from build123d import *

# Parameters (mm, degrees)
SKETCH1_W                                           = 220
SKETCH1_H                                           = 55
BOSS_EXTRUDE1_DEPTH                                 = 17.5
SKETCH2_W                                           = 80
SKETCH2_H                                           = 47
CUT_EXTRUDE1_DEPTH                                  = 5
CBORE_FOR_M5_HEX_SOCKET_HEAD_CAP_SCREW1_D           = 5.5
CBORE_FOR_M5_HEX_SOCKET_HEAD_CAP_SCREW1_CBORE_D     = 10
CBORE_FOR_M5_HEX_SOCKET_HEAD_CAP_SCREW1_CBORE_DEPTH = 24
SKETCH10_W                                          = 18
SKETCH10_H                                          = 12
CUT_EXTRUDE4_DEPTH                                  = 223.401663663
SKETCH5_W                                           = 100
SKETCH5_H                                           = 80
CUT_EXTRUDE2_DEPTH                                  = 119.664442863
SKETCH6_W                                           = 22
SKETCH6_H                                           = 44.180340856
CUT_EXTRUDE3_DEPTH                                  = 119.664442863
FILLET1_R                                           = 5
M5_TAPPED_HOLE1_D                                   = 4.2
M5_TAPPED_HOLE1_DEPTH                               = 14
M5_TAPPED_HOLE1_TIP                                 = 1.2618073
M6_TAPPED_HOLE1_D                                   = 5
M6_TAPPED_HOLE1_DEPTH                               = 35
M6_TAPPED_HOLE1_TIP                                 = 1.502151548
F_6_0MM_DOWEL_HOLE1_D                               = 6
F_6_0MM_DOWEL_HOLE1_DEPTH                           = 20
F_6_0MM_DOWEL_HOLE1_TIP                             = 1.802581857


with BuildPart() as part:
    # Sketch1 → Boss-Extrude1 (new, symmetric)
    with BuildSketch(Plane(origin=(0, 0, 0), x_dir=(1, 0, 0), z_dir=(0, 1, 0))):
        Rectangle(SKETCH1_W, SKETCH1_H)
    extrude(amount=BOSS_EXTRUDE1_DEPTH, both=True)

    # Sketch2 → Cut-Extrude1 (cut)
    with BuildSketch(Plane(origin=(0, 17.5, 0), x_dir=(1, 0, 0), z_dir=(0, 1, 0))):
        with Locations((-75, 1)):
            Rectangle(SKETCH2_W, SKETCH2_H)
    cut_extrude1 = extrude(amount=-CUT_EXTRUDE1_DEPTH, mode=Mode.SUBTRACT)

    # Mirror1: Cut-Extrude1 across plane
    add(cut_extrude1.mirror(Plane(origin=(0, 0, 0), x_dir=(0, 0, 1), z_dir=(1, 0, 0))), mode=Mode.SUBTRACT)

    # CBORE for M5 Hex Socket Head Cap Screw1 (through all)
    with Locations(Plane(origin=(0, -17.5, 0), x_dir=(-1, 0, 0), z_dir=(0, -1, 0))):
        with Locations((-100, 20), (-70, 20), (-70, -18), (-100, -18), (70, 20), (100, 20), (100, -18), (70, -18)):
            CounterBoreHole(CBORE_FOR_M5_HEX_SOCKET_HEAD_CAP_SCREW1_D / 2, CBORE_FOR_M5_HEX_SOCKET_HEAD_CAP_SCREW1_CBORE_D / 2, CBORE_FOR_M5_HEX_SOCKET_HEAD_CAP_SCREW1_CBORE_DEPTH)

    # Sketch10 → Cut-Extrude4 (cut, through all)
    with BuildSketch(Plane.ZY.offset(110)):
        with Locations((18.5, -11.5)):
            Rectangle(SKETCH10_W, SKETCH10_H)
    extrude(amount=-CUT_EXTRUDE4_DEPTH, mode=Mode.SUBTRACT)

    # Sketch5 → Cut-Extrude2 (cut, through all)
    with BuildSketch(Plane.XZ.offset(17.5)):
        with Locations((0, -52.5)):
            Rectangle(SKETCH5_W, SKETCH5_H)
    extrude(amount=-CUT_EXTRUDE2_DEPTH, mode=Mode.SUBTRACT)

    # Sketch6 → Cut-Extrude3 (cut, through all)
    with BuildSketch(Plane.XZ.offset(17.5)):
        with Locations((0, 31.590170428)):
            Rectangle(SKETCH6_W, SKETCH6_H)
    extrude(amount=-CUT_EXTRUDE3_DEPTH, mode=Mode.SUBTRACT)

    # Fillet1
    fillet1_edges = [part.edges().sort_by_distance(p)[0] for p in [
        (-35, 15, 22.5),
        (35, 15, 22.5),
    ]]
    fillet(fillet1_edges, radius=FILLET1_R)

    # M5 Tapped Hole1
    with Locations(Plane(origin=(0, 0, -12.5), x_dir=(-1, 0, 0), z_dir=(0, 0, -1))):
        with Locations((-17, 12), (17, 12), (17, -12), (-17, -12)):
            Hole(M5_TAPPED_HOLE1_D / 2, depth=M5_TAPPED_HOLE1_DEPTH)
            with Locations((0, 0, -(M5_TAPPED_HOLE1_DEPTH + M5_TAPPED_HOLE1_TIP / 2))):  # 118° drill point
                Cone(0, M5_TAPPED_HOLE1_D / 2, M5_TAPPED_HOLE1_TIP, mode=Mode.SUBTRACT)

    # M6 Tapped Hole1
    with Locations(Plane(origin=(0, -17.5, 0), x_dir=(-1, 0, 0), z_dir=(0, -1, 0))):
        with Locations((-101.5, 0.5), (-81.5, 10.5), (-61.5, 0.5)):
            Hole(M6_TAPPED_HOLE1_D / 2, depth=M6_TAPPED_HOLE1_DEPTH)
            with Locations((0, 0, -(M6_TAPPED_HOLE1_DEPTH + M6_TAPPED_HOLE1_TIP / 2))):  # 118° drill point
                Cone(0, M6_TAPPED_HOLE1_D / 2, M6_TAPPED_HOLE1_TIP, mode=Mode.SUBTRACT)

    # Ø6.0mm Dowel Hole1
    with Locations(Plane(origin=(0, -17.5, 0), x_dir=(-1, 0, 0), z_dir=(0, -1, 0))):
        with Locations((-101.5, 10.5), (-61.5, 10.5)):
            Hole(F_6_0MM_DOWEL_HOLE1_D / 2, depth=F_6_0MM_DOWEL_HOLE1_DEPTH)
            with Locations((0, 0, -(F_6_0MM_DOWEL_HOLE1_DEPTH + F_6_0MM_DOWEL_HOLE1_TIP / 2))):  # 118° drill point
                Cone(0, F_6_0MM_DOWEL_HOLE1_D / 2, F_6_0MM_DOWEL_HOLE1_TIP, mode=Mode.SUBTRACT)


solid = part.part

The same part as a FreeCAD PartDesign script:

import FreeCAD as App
import Part
import Sketcher

V = App.Vector
Q = App.Units.Quantity


def edges_at(feature, points):
    """Names of the edges that pass closest to the given points."""
    edges = feature.Shape.Edges
    near = lambda p: min(range(len(edges)), key=lambda i: edges[i].distToShape(Part.Vertex(*p))[0])
    return sorted({f"Edge{near(p) + 1}" for p in points})


def add_polygon(sketch, points):
    """Adds a closed chain of lines whose ends are joined by coincident constraints."""
    first, n = sketch.GeometryCount, len(points)
    for a, b in zip(points, points[1:] + points[:1]):
        sketch.addGeometry(Part.LineSegment(App.Vector(*a, 0), App.Vector(*b, 0)), False)
    for i in range(n):
        sketch.addConstraint(Sketcher.Constraint("Coincident", first + i, 2, first + (i + 1) % n, 1))

doc = App.newDocument("Part")
body = doc.addObject("PartDesign::Body", "Body")

sketch1 = doc.addObject("Sketcher::SketchObject", "Sketch")
body.addObject(sketch1)
sketch1.AttachmentSupport = (doc.XZ_Plane, [""])
sketch1.MapMode = "FlatFace"
add_polygon(sketch1, [(-110, -27.5), (-110, 27.5), (110, 27.5), (110, -27.5)])
sketch1.addConstraint([
    Sketcher.Constraint("Vertical", 0),
    Sketcher.Constraint("Horizontal", 1),
    Sketcher.Constraint("Vertical", 2),
    Sketcher.Constraint("Horizontal", 3),
    Sketcher.Constraint("Symmetric", 0, 2, 2, 2, -1, 1),
    Sketcher.Constraint("DistanceX", 1, 1, 1, 2, Q("220 mm")),
    Sketcher.Constraint("DistanceY", 0, 1, 0, 2, Q("55 mm")),
])
pad1 = doc.addObject("PartDesign::Pad", "Pad")
body.addObject(pad1)
pad1.Profile = sketch1
pad1.Length = 35
pad1.Midplane = True

sketch2 = doc.addObject("Sketcher::SketchObject", "Sketch001")
body.addObject(sketch2)
sketch2.AttachmentSupport = (doc.XZ_Plane, [""])
sketch2.MapMode = "FlatFace"
sketch2.AttachmentOffset = App.Placement(V(0, 0, -17.5), App.Rotation())
add_polygon(sketch2, [(-115, -24.5), (-115, 22.5), (-35, 22.5), (-35, -24.5)])
sketch2.addConstraint([
    Sketcher.Constraint("Vertical", 0),
    Sketcher.Constraint("Horizontal", 1),
    Sketcher.Constraint("Vertical", 2),
    Sketcher.Constraint("Horizontal", 3),
    Sketcher.Constraint("DistanceX", 1, 1, 1, 2, Q("80 mm")),
    Sketcher.Constraint("DistanceY", 0, 1, 0, 2, Q("47 mm")),
    Sketcher.Constraint("DistanceX", 0, 2, -1, 1, Q("115 mm")),
    Sketcher.Constraint("DistanceY", -1, 1, 0, 2, Q("22.5 mm")),
])
pocket1 = doc.addObject("PartDesign::Pocket", "Pocket")
body.addObject(pocket1)
pocket1.Profile = sketch2
pocket1.Length = 5
pocket1.Reversed = True
doc.recompute()

mirrored = doc.addObject("PartDesign::Mirrored", "Mirrored")
body.addObject(mirrored)
mirrored.Originals = [pocket1]
mirrored.MirrorPlane = (doc.YZ_Plane, [""])
body.Tip = mirrored

sketch3 = doc.addObject("Sketcher::SketchObject", "Sketch002")
body.addObject(sketch3)
sketch3.AttachmentSupport = (doc.XZ_Plane, [""])
sketch3.MapMode = "FlatFace"
sketch3.AttachmentOffset = App.Placement(V(0, 0, 17.5), App.Rotation())
sketch3.addGeometry([
    Part.Circle(V(100, -20, 0), V(0, 0, 1), 2.75),
    Part.Circle(V(70, -20, 0), V(0, 0, 1), 2.75),
    Part.Circle(V(70, 18, 0), V(0, 0, 1), 2.75),
    Part.Circle(V(100, 18, 0), V(0, 0, 1), 2.75),
    Part.Circle(V(-70, -20, 0), V(0, 0, 1), 2.75),
    Part.Circle(V(-100, -20, 0), V(0, 0, 1), 2.75),
    Part.Circle(V(-100, 18, 0), V(0, 0, 1), 2.75),
    Part.Circle(V(-70, 18, 0), V(0, 0, 1), 2.75),
], False)
sketch3.addConstraint([
    Sketcher.Constraint("Equal", 0, 1),
    Sketcher.Constraint("Equal", 1, 2),
    Sketcher.Constraint("Equal", 2, 3),
    Sketcher.Constraint("Equal", 3, 4),
    Sketcher.Constraint("Equal", 4, 5),
    Sketcher.Constraint("Equal", 5, 6),
    Sketcher.Constraint("Equal", 6, 7),
    Sketcher.Constraint("Symmetric", 1, 3, 4, 3, -2),
    Sketcher.Constraint("Symmetric", 0, 3, 5, 3, -2),
    Sketcher.Constraint("Symmetric", 3, 3, 6, 3, -2),
    Sketcher.Constraint("Symmetric", 2, 3, 7, 3, -2),
    Sketcher.Constraint("Horizontal", 0, 3, 1, 3),
    Sketcher.Constraint("Horizontal", 2, 3, 3, 3),
    Sketcher.Constraint("Vertical", 1, 3, 2, 3),
    Sketcher.Constraint("Vertical", 0, 3, 3, 3),
    Sketcher.Constraint("Diameter", 0, Q("5.5 mm")),
    Sketcher.Constraint("DistanceX", -1, 1, 0, 3, Q("100 mm")),
    Sketcher.Constraint("DistanceY", 0, 3, -1, 1, Q("20 mm")),
    Sketcher.Constraint("DistanceX", -1, 1, 1, 3, Q("70 mm")),
    Sketcher.Constraint("DistanceY", -1, 1, 2, 3, Q("18 mm")),
])
doc.recompute()
hole = doc.addObject("PartDesign::Hole", "Hole")
body.addObject(hole)
hole.Profile = sketch3
hole.ThreadType = "None"
hole.Diameter = 5.5
hole.DepthType = "ThroughAll"
hole.HoleCutType = "Counterbore"
hole.HoleCutDiameter = 10
hole.HoleCutDepth = 24

sketch4 = doc.addObject("Sketcher::SketchObject", "Sketch003")
body.addObject(sketch4)
sketch4.AttachmentSupport = (doc.YZ_Plane, [""])
sketch4.MapMode = "FlatFace"
sketch4.AttachmentOffset = App.Placement(V(0, 0, -110), App.Rotation())
add_polygon(sketch4, [(-5.5, 9.5), (-17.5, 9.5), (-17.5, 27.5), (-5.5, 27.5)])
sketch4.addConstraint([
    Sketcher.Constraint("Horizontal", 0),
    Sketcher.Constraint("Vertical", 1),
    Sketcher.Constraint("Horizontal", 2),
    Sketcher.Constraint("Vertical", 3),
    Sketcher.Constraint("DistanceX", 0, 2, 0, 1, Q("12 mm")),
    Sketcher.Constraint("DistanceY", 1, 1, 1, 2, Q("18 mm")),
    Sketcher.Constraint("DistanceX", 0, 2, -1, 1, Q("17.5 mm")),
    Sketcher.Constraint("DistanceY", -1, 1, 0, 2, Q("9.5 mm")),
])
pocket2 = doc.addObject("PartDesign::Pocket", "Pocket001")
body.addObject(pocket2)
pocket2.Profile = sketch4
pocket2.Type = "ThroughAll"
pocket2.Reversed = True

sketch5 = doc.addObject("Sketcher::SketchObject", "Sketch004")
body.addObject(sketch5)
sketch5.AttachmentSupport = (doc.XZ_Plane, [""])
sketch5.MapMode = "FlatFace"
sketch5.AttachmentOffset = App.Placement(V(0, 0, 17.5), App.Rotation())
add_polygon(sketch5, [(-50, -12.5), (-50, -92.5), (50, -92.5), (50, -12.5)])
sketch5.addConstraint([
    Sketcher.Constraint("Vertical", 0),
    Sketcher.Constraint("Horizontal", 1),
    Sketcher.Constraint("Vertical", 2),
    Sketcher.Constraint("Horizontal", 3),
    Sketcher.Constraint("DistanceX", 1, 1, 1, 2, Q("100 mm")),
    Sketcher.Constraint("DistanceY", 0, 2, 0, 1, Q("80 mm")),
    Sketcher.Constraint("DistanceX", 0, 2, -1, 1, Q("50 mm")),
    Sketcher.Constraint("DistanceY", 0, 2, -1, 1, Q("92.5 mm")),
])
pocket3 = doc.addObject("PartDesign::Pocket", "Pocket002")
body.addObject(pocket3)
pocket3.Profile = sketch5
pocket3.Type = "ThroughAll"

sketch6 = doc.addObject("Sketcher::SketchObject", "Sketch005")
body.addObject(sketch6)
sketch6.AttachmentSupport = (doc.XZ_Plane, [""])
sketch6.MapMode = "FlatFace"
sketch6.AttachmentOffset = App.Placement(V(0, 0, 17.5), App.Rotation())
add_polygon(sketch6, [(-11, 53.680341), (-11, 9.5), (11, 9.5), (11, 53.680341)])
sketch6.addConstraint([
    Sketcher.Constraint("Vertical", 0),
    Sketcher.Constraint("Horizontal", 1),
    Sketcher.Constraint("Vertical", 2),
    Sketcher.Constraint("Horizontal", 3),
    Sketcher.Constraint("DistanceX", 1, 1, 1, 2, Q("22 mm")),
    Sketcher.Constraint("DistanceX", 0, 2, -1, 1, Q("11 mm")),
    Sketcher.Constraint("DistanceY", -1, 1, 0, 2, Q("9.5 mm")),
    Sketcher.Constraint("DistanceY", 0, 2, 0, 1, Q("44.180341 mm")),
])
pocket4 = doc.addObject("PartDesign::Pocket", "Pocket003")
body.addObject(pocket4)
pocket4.Profile = sketch6
pocket4.Type = "ThroughAll"
doc.recompute()

fillet = doc.addObject("PartDesign::Fillet", "Fillet")
body.addObject(fillet)
fillet.Base = (pocket4, edges_at(pocket4, [(-35, 15, 22.5), (35, 15, 22.5)]))
fillet.Radius = 5

sketch7 = doc.addObject("Sketcher::SketchObject", "Sketch006")
body.addObject(sketch7)
sketch7.AttachmentSupport = (doc.XY_Plane, [""])
sketch7.MapMode = "FlatFace"
sketch7.AttachmentOffset = App.Placement(V(0, 0, -12.5), App.Rotation())
sketch7.addGeometry([
    Part.Circle(V(17, 12, 0), V(0, 0, 1), 2.1),
    Part.Circle(V(-17, 12, 0), V(0, 0, 1), 2.1),
    Part.Circle(V(-17, -12, 0), V(0, 0, 1), 2.1),
    Part.Circle(V(17, -12, 0), V(0, 0, 1), 2.1),
], False)
sketch7.addConstraint([
    Sketcher.Constraint("Equal", 0, 1),
    Sketcher.Constraint("Equal", 1, 2),
    Sketcher.Constraint("Equal", 2, 3),
    Sketcher.Constraint("Symmetric", 0, 3, 2, 3, -1, 1),
    Sketcher.Constraint("Symmetric", 1, 3, 3, 3, -1, 1),
    Sketcher.Constraint("Symmetric", 0, 3, 1, 3, -2),
    Sketcher.Constraint("Diameter", 0, Q("4.2 mm")),
    Sketcher.Constraint("DistanceX", -1, 1, 0, 3, Q("17 mm")),
    Sketcher.Constraint("DistanceY", -1, 1, 0, 3, Q("12 mm")),
])
doc.recompute()
hole2 = doc.addObject("PartDesign::Hole", "Hole001")
body.addObject(hole2)
hole2.Profile = sketch7
hole2.ThreadType = "None"
hole2.Diameter = 4.2
hole2.DepthType = "Dimension"
hole2.Depth = 14
hole2.DrillPoint = "Angled"
hole2.DrillPointAngle = 118
hole2.Reversed = True

sketch8 = doc.addObject("Sketcher::SketchObject", "Sketch007")
body.addObject(sketch8)
sketch8.AttachmentSupport = (doc.XZ_Plane, [""])
sketch8.MapMode = "FlatFace"
sketch8.AttachmentOffset = App.Placement(V(0, 0, 17.5), App.Rotation())
sketch8.addGeometry([
    Part.Circle(V(101.5, -0.5, 0), V(0, 0, 1), 2.5),
    Part.Circle(V(81.5, -10.5, 0), V(0, 0, 1), 2.5),
    Part.Circle(V(61.5, -0.5, 0), V(0, 0, 1), 2.5),
], False)
sketch8.addConstraint([
    Sketcher.Constraint("Equal", 0, 1),
    Sketcher.Constraint("Equal", 1, 2),
    Sketcher.Constraint("Horizontal", 0, 3, 2, 3),
    Sketcher.Constraint("Diameter", 0, Q("5 mm")),
    Sketcher.Constraint("DistanceX", 1, 3, 0, 3, Q("20 mm")),
    Sketcher.Constraint("DistanceY", 1, 3, 0, 3, Q("10 mm")),
    Sketcher.Constraint("DistanceX", 2, 3, 1, 3, Q("20 mm")),
    Sketcher.Constraint("DistanceX", -1, 1, 0, 3, Q("101.5 mm")),
    Sketcher.Constraint("DistanceY", 0, 3, -1, 1, Q("0.5 mm")),
])
doc.recompute()
hole3 = doc.addObject("PartDesign::Hole", "Hole002")
body.addObject(hole3)
hole3.Profile = sketch8
hole3.ThreadType = "None"
hole3.Diameter = 5
hole3.DepthType = "Dimension"
hole3.Depth = 35
hole3.DrillPoint = "Angled"
hole3.DrillPointAngle = 118

sketch9 = doc.addObject("Sketcher::SketchObject", "Sketch008")
body.addObject(sketch9)
sketch9.AttachmentSupport = (doc.XZ_Plane, [""])
sketch9.MapMode = "FlatFace"
sketch9.AttachmentOffset = App.Placement(V(0, 0, 17.5), App.Rotation())
sketch9.addGeometry([
    Part.Circle(V(101.5, -10.5, 0), V(0, 0, 1), 3),
    Part.Circle(V(61.5, -10.5, 0), V(0, 0, 1), 3),
], False)
sketch9.addConstraint([
    Sketcher.Constraint("Equal", 0, 1),
    Sketcher.Constraint("Horizontal", 0, 3, 1, 3),
    Sketcher.Constraint("Diameter", 0, Q("6 mm")),
    Sketcher.Constraint("DistanceX", 1, 3, 0, 3, Q("40 mm")),
    Sketcher.Constraint("DistanceX", -1, 1, 0, 3, Q("101.5 mm")),
    Sketcher.Constraint("DistanceY", 0, 3, -1, 1, Q("10.5 mm")),
])
doc.recompute()
hole4 = doc.addObject("PartDesign::Hole", "Hole003")
body.addObject(hole4)
hole4.Profile = sketch9
hole4.ThreadType = "None"
hole4.Diameter = 6
hole4.DepthType = "Dimension"
hole4.Depth = 20
hole4.DrillPoint = "Angled"
hole4.DrillPointAngle = 118

doc.recompute()
